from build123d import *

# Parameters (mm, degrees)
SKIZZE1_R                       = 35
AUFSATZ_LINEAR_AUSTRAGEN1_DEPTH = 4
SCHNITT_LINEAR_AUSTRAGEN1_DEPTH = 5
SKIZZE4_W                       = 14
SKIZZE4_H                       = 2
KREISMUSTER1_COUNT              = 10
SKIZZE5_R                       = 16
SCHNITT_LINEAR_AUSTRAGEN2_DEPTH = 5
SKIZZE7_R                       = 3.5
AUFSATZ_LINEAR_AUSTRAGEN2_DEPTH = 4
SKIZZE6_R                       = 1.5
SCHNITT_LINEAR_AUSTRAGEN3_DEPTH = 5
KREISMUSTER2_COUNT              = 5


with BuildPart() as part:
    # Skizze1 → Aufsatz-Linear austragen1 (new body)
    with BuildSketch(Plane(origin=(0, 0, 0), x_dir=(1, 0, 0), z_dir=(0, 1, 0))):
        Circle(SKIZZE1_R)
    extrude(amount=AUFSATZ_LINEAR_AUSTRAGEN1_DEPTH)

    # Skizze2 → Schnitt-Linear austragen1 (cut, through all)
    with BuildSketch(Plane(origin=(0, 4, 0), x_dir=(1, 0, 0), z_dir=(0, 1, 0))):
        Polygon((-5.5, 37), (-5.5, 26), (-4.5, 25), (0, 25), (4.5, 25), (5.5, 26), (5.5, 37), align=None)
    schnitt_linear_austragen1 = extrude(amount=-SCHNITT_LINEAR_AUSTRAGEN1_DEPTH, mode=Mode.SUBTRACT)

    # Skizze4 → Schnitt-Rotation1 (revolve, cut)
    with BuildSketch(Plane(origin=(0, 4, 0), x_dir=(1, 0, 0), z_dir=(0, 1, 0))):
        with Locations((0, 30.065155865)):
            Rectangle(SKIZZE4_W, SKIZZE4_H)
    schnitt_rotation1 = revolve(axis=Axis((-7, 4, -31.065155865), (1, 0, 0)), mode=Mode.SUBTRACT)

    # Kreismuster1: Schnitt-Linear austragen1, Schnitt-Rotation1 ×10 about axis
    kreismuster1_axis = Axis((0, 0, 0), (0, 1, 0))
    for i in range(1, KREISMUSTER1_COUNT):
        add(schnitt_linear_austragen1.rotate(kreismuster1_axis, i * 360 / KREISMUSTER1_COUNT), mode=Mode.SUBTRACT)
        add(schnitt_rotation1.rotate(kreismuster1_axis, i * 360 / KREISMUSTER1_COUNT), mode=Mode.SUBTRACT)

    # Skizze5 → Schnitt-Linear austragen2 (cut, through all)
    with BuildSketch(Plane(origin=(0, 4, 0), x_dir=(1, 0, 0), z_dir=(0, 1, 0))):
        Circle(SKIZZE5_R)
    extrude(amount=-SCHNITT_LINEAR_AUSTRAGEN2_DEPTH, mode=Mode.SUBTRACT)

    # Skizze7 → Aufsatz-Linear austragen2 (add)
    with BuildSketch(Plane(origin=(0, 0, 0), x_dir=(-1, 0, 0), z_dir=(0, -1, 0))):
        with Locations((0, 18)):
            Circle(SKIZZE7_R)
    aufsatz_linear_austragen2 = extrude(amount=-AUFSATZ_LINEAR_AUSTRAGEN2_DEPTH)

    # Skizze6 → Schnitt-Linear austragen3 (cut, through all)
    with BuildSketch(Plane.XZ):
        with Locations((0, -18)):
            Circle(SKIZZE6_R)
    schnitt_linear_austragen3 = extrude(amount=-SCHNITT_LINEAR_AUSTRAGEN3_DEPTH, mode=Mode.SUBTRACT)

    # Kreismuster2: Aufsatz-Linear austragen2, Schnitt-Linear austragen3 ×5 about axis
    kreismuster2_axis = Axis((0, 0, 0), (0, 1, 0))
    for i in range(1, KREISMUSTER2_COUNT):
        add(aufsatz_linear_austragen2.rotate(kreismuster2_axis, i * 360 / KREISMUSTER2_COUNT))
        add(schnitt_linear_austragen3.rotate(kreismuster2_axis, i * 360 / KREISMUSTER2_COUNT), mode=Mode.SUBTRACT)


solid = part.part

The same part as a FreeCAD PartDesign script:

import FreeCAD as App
import Part
import Sketcher

V = App.Vector


def add_polygon(sketch, points):
    """Adds a closed chain of lines whose ends are joined by coincident constraints."""
    first, n = sketch.GeometryCount, len(points)
    for a, b in zip(points, points[1:] + points[:1]):
        sketch.addGeometry(Part.LineSegment(App.Vector(*a, 0), App.Vector(*b, 0)), False)
    for i in range(n):
        sketch.addConstraint(Sketcher.Constraint("Coincident", first + i, 2, first + (i + 1) % n, 1))

doc = App.newDocument("Part")
body = doc.addObject("PartDesign::Body", "Body")

sketch1 = body.newObject("Sketcher::SketchObject", "Sketch")
sketch1.AttachmentSupport = (doc.getObject("XZ_Plane"), [""])
sketch1.MapMode = "FlatFace"
sketch1.addGeometry(Part.Circle(V(0, 0, 0), V(0, 0, 1), 35), False)
sketch1.addConstraint([
    Sketcher.Constraint("Coincident", 0, 3, -1, 1),
    Sketcher.Constraint("Diameter", 0, 70.0),
])
pad1 = body.newObject("PartDesign::Pad", "Pad")
pad1.Profile = sketch1
pad1.Length = 4
pad1.Reversed = True

sketch2 = body.newObject("Sketcher::SketchObject", "Sketch001")
sketch2.AttachmentSupport = (doc.getObject("XZ_Plane"), [""])
sketch2.MapMode = "FlatFace"
sketch2.AttachmentOffset = App.Placement(V(0, 0, -4), App.Rotation())
add_polygon(sketch2, [(-5.5, -37), (-5.5, -26), (-4.5, -25), (4.5, -25), (5.5, -26), (5.5, -37)])
sketch2.addConstraint([
    Sketcher.Constraint("Vertical", 0),
    Sketcher.Constraint("Horizontal", 2),
    Sketcher.Constraint("Vertical", 4),
    Sketcher.Constraint("Horizontal", 5),
    Sketcher.Constraint("Symmetric", 0, 2, 3, 2, -2),
    Sketcher.Constraint("Perpendicular", 1, 3),
    Sketcher.Constraint("Equal", 5, 0),
    Sketcher.Constraint("Equal", 1, 3),
    Sketcher.Constraint("DistanceX", 2, 1, 2, 2, 9.0),
    Sketcher.Constraint("DistanceX", 5, 2, 5, 1, 11.0),
    Sketcher.Constraint("DistanceY", 0, 2, -1, 1, 26.0),
])
pocket1 = body.newObject("PartDesign::Pocket", "Pocket")
pocket1.Profile = sketch2
pocket1.Type = "ThroughAll"
pocket1.Reversed = True

sketch3 = body.newObject("Sketcher::SketchObject", "Sketch002")
sketch3.AttachmentSupport = (doc.getObject("XZ_Plane"), [""])
sketch3.MapMode = "FlatFace"
sketch3.AttachmentOffset = App.Placement(V(0, 0, -4), App.Rotation())
add_polygon(sketch3, [(-7, -31.065156), (-7, -29.065156), (7, -29.065156), (7, -31.065156)])
sketch3.addGeometry(Part.LineSegment(V(-7, -31.065156, 0), V(7, -31.065156, 0)), True)
sketch3.addConstraint([
    Sketcher.Constraint("Vertical", 0),
    Sketcher.Constraint("Horizontal", 1),
    Sketcher.Constraint("Vertical", 2),
    Sketcher.Constraint("Horizontal", 3),
    Sketcher.Constraint("Horizontal", 4),
    Sketcher.Constraint("Coincident", 4, 1, 3, 2),
    Sketcher.Constraint("Vertical", 1, 2, 4, 2),
    Sketcher.Constraint("DistanceX", 1, 1, 1, 2, 14.0),
    Sketcher.Constraint("DistanceY", 0, 1, 0, 2, 2.0),
    Sketcher.Constraint("DistanceX", 0, 2, -1, 1, 7.0),
    Sketcher.Constraint("DistanceY", 0, 2, -1, 1, 29.065156),
])
groove = body.newObject("PartDesign::Groove", "Groove")
groove.Profile = sketch3
groove.ReferenceAxis = (sketch3, ["Axis0"])
groove.Angle = 360
doc.recompute()

polarpattern = body.newObject("PartDesign::PolarPattern", "PolarPattern")
polarpattern.Originals = [pocket1, groove]
polarpattern.Axis = (doc.getObject("Y_Axis"), [""])
polarpattern.Angle = 360
polarpattern.Occurrences = 10
body.Tip = polarpattern

sketch4 = body.newObject("Sketcher::SketchObject", "Sketch003")
sketch4.AttachmentSupport = (doc.getObject("XZ_Plane"), [""])
sketch4.MapMode = "FlatFace"
sketch4.AttachmentOffset = App.Placement(V(0, 0, -4), App.Rotation())
sketch4.addGeometry(Part.Circle(V(0, 0, 0), V(0, 0, 1), 16), False)
sketch4.addConstraint([
    Sketcher.Constraint("Coincident", 0, 3, -1, 1),
    Sketcher.Constraint("Diameter", 0, 32.0),
])
pocket2 = body.newObject("PartDesign::Pocket", "Pocket001")
pocket2.Profile = sketch4
pocket2.Type = "ThroughAll"
pocket2.Reversed = True

sketch5 = body.newObject("Sketcher::SketchObject", "Sketch004")
sketch5.AttachmentSupport = (doc.getObject("XZ_Plane"), [""])
sketch5.MapMode = "FlatFace"
sketch5.addGeometry(Part.Circle(V(0, -18, 0), V(0, 0, 1), 3.5), False)
sketch5.addConstraint([
    Sketcher.Constraint("PointOnObject", 0, 3, -2),
    Sketcher.Constraint("Diameter", 0, 7.0),
    Sketcher.Constraint("DistanceY", 0, 3, -1, 1, 18.0),
])
pad2 = body.newObject("PartDesign::Pad", "Pad001")
pad2.Profile = sketch5
pad2.Length = 4
pad2.Reversed = True

sketch6 = body.newObject("Sketcher::SketchObject", "Sketch005")
sketch6.AttachmentSupport = (doc.getObject("XZ_Plane"), [""])
sketch6.MapMode = "FlatFace"
sketch6.addGeometry(Part.Circle(V(0, -18, 0), V(0, 0, 1), 1.5), False)
sketch6.addConstraint([
    Sketcher.Constraint("PointOnObject", 0, 3, -2),
    Sketcher.Constraint("Diameter", 0, 3.0),
    Sketcher.Constraint("DistanceY", 0, 3, -1, 1, 18.0),
])
pocket3 = body.newObject("PartDesign::Pocket", "Pocket002")
pocket3.Profile = sketch6
pocket3.Type = "ThroughAll"
doc.recompute()

polarpattern2 = body.newObject("PartDesign::PolarPattern", "PolarPattern001")
polarpattern2.Originals = [pad2, pocket3]
polarpattern2.Axis = (doc.getObject("Y_Axis"), [""])
polarpattern2.Angle = 360
polarpattern2.Occurrences = 5
body.Tip = polarpattern2

doc.recompute()
